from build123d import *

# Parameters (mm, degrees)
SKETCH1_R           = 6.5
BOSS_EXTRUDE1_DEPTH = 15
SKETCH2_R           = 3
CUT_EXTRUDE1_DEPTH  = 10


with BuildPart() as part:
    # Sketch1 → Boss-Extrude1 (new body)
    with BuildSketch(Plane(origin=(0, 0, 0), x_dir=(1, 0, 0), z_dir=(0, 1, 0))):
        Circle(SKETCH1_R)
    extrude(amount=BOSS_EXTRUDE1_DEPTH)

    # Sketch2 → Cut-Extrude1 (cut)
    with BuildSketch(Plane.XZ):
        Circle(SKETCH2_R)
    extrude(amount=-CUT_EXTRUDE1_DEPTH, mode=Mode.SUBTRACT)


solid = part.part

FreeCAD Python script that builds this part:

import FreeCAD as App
import Part
import Sketcher

V = App.Vector

doc = App.newDocument("Part")
body = doc.addObject("PartDesign::Body", "Body")

# Sketch on XZ plane
sketch1 = body.newObject("Sketcher::SketchObject", "Sketch")
sketch1.AttachmentSupport = (doc.getObject("XZ_Plane"), [""])
sketch1.MapMode = "FlatFace"
sketch1.addGeometry(Part.Circle(V(0, 0, 0), V(0, 0, 1), 6), False)
sketch1.addConstraint([
    Sketcher.Constraint("Coincident", 0, 3, -1, 1),
    Sketcher.Constraint("Diameter", 0, 13.0),
])
pad1 = body.newObject("PartDesign::Pad", "Pad")
pad1.Profile = sketch1
pad1.Length = 15
pad1.Reversed = True

# Sketch on XZ plane
sketch2 = body.newObject("Sketcher::SketchObject", "Sketch001")
sketch2.AttachmentSupport = (doc.getObject("XZ_Plane"), [""])
sketch2.MapMode = "FlatFace"
sketch2.addGeometry(Part.Circle(V(0, 0, 0), V(0, 0, 1), 3), False)
sketch2.addConstraint([
    Sketcher.Constraint("Coincident", 0, 3, -1, 1),
    Sketcher.Constraint("Diameter", 0, 6.0),
])
pocket1 = body.newObject("PartDesign::Pocket", "Pocket")
pocket1.Profile = sketch2
pocket1.Length = 10

doc.recompute()
